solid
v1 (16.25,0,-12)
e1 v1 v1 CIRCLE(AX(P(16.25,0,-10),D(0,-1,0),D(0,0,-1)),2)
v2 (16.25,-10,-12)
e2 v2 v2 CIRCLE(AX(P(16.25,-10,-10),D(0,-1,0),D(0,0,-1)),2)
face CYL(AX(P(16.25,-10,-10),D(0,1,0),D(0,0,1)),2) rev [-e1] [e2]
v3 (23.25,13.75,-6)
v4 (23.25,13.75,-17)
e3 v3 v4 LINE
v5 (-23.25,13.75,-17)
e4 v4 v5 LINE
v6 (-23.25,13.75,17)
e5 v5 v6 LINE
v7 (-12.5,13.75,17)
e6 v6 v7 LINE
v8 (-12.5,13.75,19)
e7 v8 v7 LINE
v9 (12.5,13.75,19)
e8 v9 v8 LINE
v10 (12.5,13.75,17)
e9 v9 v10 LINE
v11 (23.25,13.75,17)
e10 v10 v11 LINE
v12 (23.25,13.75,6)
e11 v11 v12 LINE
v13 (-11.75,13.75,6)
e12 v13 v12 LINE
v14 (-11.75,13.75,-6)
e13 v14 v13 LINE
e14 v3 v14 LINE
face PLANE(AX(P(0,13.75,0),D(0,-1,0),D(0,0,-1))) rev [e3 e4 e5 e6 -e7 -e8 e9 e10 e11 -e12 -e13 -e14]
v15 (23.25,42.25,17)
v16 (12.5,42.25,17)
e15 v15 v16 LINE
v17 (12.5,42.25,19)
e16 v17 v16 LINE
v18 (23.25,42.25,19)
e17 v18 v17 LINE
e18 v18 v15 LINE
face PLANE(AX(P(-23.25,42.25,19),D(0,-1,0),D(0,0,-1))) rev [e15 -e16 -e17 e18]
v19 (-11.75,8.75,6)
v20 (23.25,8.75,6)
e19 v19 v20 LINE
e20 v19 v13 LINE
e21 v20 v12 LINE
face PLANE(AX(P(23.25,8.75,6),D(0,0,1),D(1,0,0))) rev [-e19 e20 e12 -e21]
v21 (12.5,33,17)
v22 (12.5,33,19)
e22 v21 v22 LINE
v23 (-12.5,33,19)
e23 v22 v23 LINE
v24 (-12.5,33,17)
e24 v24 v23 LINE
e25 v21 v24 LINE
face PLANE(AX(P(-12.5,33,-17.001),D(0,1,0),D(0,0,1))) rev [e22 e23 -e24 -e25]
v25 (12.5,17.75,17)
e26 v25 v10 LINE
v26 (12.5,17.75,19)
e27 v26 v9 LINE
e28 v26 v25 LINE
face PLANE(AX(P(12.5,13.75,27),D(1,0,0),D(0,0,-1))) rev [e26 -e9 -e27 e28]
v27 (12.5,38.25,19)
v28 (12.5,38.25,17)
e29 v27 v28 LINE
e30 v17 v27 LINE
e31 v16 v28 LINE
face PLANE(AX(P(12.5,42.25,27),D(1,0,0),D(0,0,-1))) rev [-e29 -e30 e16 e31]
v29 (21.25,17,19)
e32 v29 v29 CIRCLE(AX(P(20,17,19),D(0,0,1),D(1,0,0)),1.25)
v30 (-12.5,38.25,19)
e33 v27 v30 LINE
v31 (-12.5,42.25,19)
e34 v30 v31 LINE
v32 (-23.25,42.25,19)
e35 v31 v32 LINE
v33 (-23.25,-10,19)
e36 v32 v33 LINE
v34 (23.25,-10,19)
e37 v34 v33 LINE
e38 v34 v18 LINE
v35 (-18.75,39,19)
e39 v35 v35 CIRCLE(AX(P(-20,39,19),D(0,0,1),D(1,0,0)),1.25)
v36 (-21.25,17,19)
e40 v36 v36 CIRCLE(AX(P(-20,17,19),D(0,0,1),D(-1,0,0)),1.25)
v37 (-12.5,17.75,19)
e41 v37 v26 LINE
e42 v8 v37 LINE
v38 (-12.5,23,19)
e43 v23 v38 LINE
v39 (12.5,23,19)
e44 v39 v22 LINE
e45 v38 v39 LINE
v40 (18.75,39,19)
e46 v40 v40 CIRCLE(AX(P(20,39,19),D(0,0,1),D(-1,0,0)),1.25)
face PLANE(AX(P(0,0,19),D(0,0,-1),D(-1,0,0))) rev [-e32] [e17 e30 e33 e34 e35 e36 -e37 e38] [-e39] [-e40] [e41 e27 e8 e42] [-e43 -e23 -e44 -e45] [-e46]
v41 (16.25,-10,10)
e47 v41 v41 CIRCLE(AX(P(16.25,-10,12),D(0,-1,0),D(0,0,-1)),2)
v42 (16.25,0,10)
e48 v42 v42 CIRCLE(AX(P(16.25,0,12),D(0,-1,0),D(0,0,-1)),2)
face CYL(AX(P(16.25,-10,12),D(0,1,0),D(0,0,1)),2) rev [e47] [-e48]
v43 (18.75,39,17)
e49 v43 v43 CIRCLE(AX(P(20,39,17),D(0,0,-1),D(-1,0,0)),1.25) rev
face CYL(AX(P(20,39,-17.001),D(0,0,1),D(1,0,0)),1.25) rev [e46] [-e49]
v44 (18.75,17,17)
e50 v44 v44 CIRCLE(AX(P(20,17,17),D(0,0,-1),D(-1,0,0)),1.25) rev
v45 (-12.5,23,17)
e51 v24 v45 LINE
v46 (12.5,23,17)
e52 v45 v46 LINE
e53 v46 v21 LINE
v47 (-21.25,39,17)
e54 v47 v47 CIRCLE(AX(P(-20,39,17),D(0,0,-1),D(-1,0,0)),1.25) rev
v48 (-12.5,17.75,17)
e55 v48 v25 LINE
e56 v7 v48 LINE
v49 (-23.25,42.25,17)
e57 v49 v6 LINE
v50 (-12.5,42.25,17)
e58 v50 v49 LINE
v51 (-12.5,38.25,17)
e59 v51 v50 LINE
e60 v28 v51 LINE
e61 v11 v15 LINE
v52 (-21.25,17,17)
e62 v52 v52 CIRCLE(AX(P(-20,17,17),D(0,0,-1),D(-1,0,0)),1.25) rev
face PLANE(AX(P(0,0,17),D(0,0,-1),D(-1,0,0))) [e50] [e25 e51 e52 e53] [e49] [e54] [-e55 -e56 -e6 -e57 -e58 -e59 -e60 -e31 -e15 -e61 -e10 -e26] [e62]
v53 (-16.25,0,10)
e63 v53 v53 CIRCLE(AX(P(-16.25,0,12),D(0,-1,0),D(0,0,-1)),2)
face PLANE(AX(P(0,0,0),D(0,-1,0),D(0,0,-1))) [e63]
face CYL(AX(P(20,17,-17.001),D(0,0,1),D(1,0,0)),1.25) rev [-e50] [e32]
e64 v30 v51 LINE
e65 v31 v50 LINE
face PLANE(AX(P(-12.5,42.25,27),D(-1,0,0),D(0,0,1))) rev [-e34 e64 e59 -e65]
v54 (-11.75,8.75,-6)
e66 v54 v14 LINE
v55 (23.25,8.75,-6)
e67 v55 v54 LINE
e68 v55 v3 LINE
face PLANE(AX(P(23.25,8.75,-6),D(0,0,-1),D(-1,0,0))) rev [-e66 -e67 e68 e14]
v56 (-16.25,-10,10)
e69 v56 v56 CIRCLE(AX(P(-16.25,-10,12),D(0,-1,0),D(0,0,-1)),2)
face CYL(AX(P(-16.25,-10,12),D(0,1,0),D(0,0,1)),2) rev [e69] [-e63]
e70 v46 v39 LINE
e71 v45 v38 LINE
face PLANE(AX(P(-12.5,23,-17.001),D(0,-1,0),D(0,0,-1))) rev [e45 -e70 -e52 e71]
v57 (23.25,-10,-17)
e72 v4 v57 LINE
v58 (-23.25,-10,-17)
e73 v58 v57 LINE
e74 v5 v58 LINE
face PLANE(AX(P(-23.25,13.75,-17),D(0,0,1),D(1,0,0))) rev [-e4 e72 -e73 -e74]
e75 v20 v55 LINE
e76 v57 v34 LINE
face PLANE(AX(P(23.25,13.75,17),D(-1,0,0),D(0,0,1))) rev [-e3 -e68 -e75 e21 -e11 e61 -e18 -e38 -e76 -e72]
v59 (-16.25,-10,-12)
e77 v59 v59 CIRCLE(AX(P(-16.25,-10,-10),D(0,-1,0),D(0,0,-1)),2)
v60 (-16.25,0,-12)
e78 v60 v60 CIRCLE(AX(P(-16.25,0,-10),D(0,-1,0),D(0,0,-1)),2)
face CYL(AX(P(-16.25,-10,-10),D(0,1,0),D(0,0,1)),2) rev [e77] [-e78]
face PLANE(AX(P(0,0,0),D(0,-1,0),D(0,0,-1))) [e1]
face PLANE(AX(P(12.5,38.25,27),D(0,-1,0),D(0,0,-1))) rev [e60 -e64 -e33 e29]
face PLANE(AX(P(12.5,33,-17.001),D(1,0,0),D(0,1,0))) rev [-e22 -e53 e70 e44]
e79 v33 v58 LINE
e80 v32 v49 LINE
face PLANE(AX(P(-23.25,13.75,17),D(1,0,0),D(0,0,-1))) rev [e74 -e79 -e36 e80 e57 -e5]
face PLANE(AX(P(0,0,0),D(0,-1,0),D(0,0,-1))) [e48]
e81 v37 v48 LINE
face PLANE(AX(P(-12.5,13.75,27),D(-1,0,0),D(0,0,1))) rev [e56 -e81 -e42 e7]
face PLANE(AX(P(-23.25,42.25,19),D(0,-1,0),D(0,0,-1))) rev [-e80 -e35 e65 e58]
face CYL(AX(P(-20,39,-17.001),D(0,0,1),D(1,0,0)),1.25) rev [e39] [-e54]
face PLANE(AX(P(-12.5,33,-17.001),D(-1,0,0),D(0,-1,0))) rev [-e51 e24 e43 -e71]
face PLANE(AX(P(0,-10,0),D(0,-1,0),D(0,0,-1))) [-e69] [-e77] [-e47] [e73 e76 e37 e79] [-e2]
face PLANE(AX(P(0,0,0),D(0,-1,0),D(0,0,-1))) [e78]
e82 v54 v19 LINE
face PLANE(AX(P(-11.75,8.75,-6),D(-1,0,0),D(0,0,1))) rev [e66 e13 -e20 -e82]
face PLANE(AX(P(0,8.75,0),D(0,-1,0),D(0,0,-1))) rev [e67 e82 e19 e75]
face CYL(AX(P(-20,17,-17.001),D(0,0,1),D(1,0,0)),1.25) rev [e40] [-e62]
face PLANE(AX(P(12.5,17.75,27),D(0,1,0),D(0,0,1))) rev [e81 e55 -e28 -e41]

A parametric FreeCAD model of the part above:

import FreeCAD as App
import Part
import Sketcher

V = App.Vector
Q = App.Units.Quantity


def add_polygon(sketch, points):
    """Adds a closed chain of lines whose ends are joined by coincident constraints."""
    first, n = sketch.GeometryCount, len(points)
    for a, b in zip(points, points[1:] + points[:1]):
        sketch.addGeometry(Part.LineSegment(App.Vector(*a, 0), App.Vector(*b, 0)), False)
    for i in range(n):
        sketch.addConstraint(Sketcher.Constraint("Coincident", first + i, 2, first + (i + 1) % n, 1))

doc = App.newDocument("Part")
body = doc.addObject("PartDesign::Body", "Body")

# Sketch on XZ plane
sketch1 = doc.addObject("Sketcher::SketchObject", "Sketch")
body.addObject(sketch1)
sketch1.AttachmentSupport = (doc.XZ_Plane, [""])
sketch1.MapMode = "FlatFace"
add_polygon(sketch1, [(-23, -17), (-23, 17), (23, 17), (23, -17)])  # lines 0-3
sketch1.addConstraint([
    Sketcher.Constraint("Vertical", 0),
    Sketcher.Constraint("Horizontal", 1),
    Sketcher.Constraint("Vertical", 2),
    Sketcher.Constraint("Horizontal", 3),
    Sketcher.Constraint("Symmetric", 0, 2, 2, 2, -1, 1),
    Sketcher.Constraint("DistanceY", 0, 1, 0, 2, Q("34 mm")),
    Sketcher.Constraint("DistanceX", 1, 1, 1, 2, Q("46.5 mm")),
])
pad1 = doc.addObject("PartDesign::Pad", "Pad")
body.addObject(pad1)
pad1.Profile = sketch1
pad1.Length = 13.75
pad1.Reversed = True

# Sketch on XY plane
sketch2 = doc.addObject("Sketcher::SketchObject", "Sketch001")
body.addObject(sketch2)
sketch2.AttachmentSupport = (doc.XY_Plane, [""])
sketch2.MapMode = "FlatFace"
sketch2.AttachmentOffset = App.Placement(V(0, 0, 17), App.Rotation())
add_polygon(sketch2, [(-23, 42), (-23, 0), (23, 0), (23, 42)])  # lines 0-3
sketch2.addConstraint([
    Sketcher.Constraint("Vertical", 0),
    Sketcher.Constraint("Horizontal", 1),
    Sketcher.Constraint("Vertical", 2),
    Sketcher.Constraint("Horizontal", 3),
    Sketcher.Constraint("Symmetric", 0, 2, 1, 2, -1, 1),
    Sketcher.Constraint("DistanceX", 1, 1, 1, 2, Q("46.5 mm")),
    Sketcher.Constraint("DistanceY", 0, 2, 0, 1, Q("42.25 mm")),
])
pad2 = doc.addObject("PartDesign::Pad", "Pad001")
body.addObject(pad2)
pad2.Profile = sketch2
pad2.Length = 2

# Sketch on XY plane
sketch3 = doc.addObject("Sketcher::SketchObject", "Sketch002")
body.addObject(sketch3)
sketch3.AttachmentSupport = (doc.XY_Plane, [""])
sketch3.MapMode = "FlatFace"
sketch3.AttachmentOffset = App.Placement(V(0, 0, 19), App.Rotation())
sketch3.addGeometry(Part.Circle(V(-20, 39, 0), V(0, 0, 1), 1.2), False)
sketch3.addConstraint([
    Sketcher.Constraint("Diameter", 0, Q("2.5 mm")),
    Sketcher.Constraint("DistanceX", 0, 3, -1, 1, Q("20 mm")),
    Sketcher.Constraint("DistanceY", -1, 1, 0, 3, Q("39 mm")),
])
pocket1 = doc.addObject("PartDesign::Pocket", "Pocket")
body.addObject(pocket1)
pocket1.Profile = sketch3
pocket1.Type = "UpToFirst"

# Sketch on XY plane
sketch4 = doc.addObject("Sketcher::SketchObject", "Sketch003")
body.addObject(sketch4)
sketch4.AttachmentSupport = (doc.XY_Plane, [""])
sketch4.MapMode = "FlatFace"
sketch4.AttachmentOffset = App.Placement(V(0, 0, 19), App.Rotation())
sketch4.addGeometry(Part.Circle(V(20, 39, 0), V(0, 0, 1), 1.2), False)
sketch4.addConstraint([
    Sketcher.Constraint("Diameter", 0, Q("2.5 mm")),
    Sketcher.Constraint("DistanceX", -1, 1, 0, 3, Q("20 mm")),
    Sketcher.Constraint("DistanceY", -1, 1, 0, 3, Q("39 mm")),
])
pocket2 = doc.addObject("PartDesign::Pocket", "Pocket001")
body.addObject(pocket2)
pocket2.Profile = sketch4
pocket2.Type = "UpToFirst"

# Sketch on XY plane
sketch5 = doc.addObject("Sketcher::SketchObject", "Sketch004")
body.addObject(sketch5)
sketch5.AttachmentSupport = (doc.XY_Plane, [""])
sketch5.MapMode = "FlatFace"
sketch5.AttachmentOffset = App.Placement(V(0, 0, 19), App.Rotation())
sketch5.addGeometry(Part.Circle(V(20, 17, 0), V(0, 0, 1), 1.2), False)
sketch5.addConstraint([
    Sketcher.Constraint("Diameter", 0, Q("2.5 mm")),
    Sketcher.Constraint("DistanceX", -1, 1, 0, 3, Q("20 mm")),
    Sketcher.Constraint("DistanceY", -1, 1, 0, 3, Q("17 mm")),
])
pocket3 = doc.addObject("PartDesign::Pocket", "Pocket002")
body.addObject(pocket3)
pocket3.Profile = sketch5
pocket3.Type = "UpToFirst"

# Sketch on XY plane
sketch6 = doc.addObject("Sketcher::SketchObject", "Sketch005")
body.addObject(sketch6)
sketch6.AttachmentSupport = (doc.XY_Plane, [""])
sketch6.MapMode = "FlatFace"
sketch6.AttachmentOffset = App.Placement(V(0, 0, 19), App.Rotation())
sketch6.addGeometry(Part.Circle(V(-20, 17, 0), V(0, 0, 1), 1.2), False)
sketch6.addConstraint([
    Sketcher.Constraint("Diameter", 0, Q("2.5 mm")),
    Sketcher.Constraint("DistanceX", 0, 3, -1, 1, Q("20 mm")),
    Sketcher.Constraint("DistanceY", -1, 1, 0, 3, Q("17 mm")),
])
pocket4 = doc.addObject("PartDesign::Pocket", "Pocket003")
body.addObject(pocket4)
pocket4.Profile = sketch6
pocket4.Type = "UpToFirst"

# Sketch on XY plane
sketch7 = doc.addObject("Sketcher::SketchObject", "Sketch006")
body.addObject(sketch7)
sketch7.AttachmentSupport = (doc.XY_Plane, [""])
sketch7.MapMode = "FlatFace"
sketch7.AttachmentOffset = App.Placement(V(0, 0, 19), App.Rotation())
add_polygon(sketch7, [(-12, 33), (-12, 23), (12, 23), (12, 33)])  # lines 0-3
sketch7.addConstraint([
    Sketcher.Constraint("Vertical", 0),
    Sketcher.Constraint("Horizontal", 1),
    Sketcher.Constraint("Vertical", 2),
    Sketcher.Constraint("Horizontal", 3),
    Sketcher.Constraint("DistanceX", 1, 1, 1, 2, Q("25 mm")),
    Sketcher.Constraint("DistanceY", 0, 2, 0, 1, Q("10 mm")),
    Sketcher.Constraint("DistanceY", -1, 1, 0, 2, Q("23 mm")),
    Sketcher.Constraint("DistanceX", 0, 2, -1, 1, Q("12.5 mm")),
])
pocket5 = doc.addObject("PartDesign::Pocket", "Pocket004")
body.addObject(pocket5)
pocket5.Profile = sketch7
pocket5.Type = "UpToFirst"

# Sketch on XZ plane
sketch8 = doc.addObject("Sketcher::SketchObject", "Sketch007")
body.addObject(sketch8)
sketch8.AttachmentSupport = (doc.XZ_Plane, [""])
sketch8.MapMode = "FlatFace"
sketch8.AttachmentOffset = App.Placement(V(0, 0, -13.75), App.Rotation())
add_polygon(sketch8, [(-12, -6), (-12, 6), (23, 6), (23, -6)])  # lines 0-3
sketch8.addConstraint([
    Sketcher.Constraint("Vertical", 0),
    Sketcher.Constraint("Horizontal", 1),
    Sketcher.Constraint("Vertical", 2),
    Sketcher.Constraint("Horizontal", 3),
    Sketcher.Constraint("DistanceX", 1, 1, 1, 2, Q("35 mm")),
    Sketcher.Constraint("DistanceY", 0, 1, 0, 2, Q("12 mm")),
    Sketcher.Constraint("DistanceY", -1, 1, 0, 2, Q("6 mm")),
    Sketcher.Constraint("DistanceX", 0, 2, -1, 1, Q("11.75 mm")),
])
pocket6 = doc.addObject("PartDesign::Pocket", "Pocket005")
body.addObject(pocket6)
pocket6.Profile = sketch8
pocket6.Length = 5
pocket6.Reversed = True

# Sketch on XZ plane
sketch9 = doc.addObject("Sketcher::SketchObject", "Sketch008")
body.addObject(sketch9)
sketch9.AttachmentSupport = (doc.XZ_Plane, [""])
sketch9.MapMode = "FlatFace"
add_polygon(sketch9, [(-23.2, 19), (-23.2, -17), (23.2, -17), (23.2, 19)])  # lines 0-3
sketch9.addGeometry(Part.Circle(V(-16.2, -10, 0), V(0, 0, 1), 2), False)  # 4
sketch9.addGeometry(Part.Circle(V(16.2, -10, 0), V(0, 0, 1), 2), False)  # 5
sketch9.addGeometry(Part.Circle(V(-16.2, 12, 0), V(0, 0, 1), 2), False)  # 6
sketch9.addGeometry(Part.Circle(V(16.2, 12, 0), V(0, 0, 1), 2), False)  # 7
sketch9.addConstraint([
    Sketcher.Constraint("Vertical", 0),
    Sketcher.Constraint("Horizontal", 1),
    Sketcher.Constraint("Vertical", 2),
    Sketcher.Constraint("Horizontal", 3),
    Sketcher.Constraint("Equal", 4, 5),
    Sketcher.Constraint("Equal", 5, 6),
    Sketcher.Constraint("Equal", 6, 7),
    Sketcher.Constraint("Symmetric", 4, 3, 5, 3, -2),
    Sketcher.Constraint("Symmetric", 6, 3, 7, 3, -2),
    Sketcher.Constraint("Vertical", 4, 3, 6, 3),
    Sketcher.Constraint("Diameter", 4, Q("4 mm")),
    Sketcher.Constraint("DistanceY", 0, 2, 0, 1, Q("36 mm")),
    Sketcher.Constraint("DistanceX", 1, 1, 1, 2, Q("46.5 mm")),
    Sketcher.Constraint("DistanceY", 4, 3, -1, 1, Q("10 mm")),
    Sketcher.Constraint("DistanceY", -1, 1, 6, 3, Q("12 mm")),
    Sketcher.Constraint("DistanceY", 0, 2, -1, 1, Q("17 mm")),
    Sketcher.Constraint("DistanceX", 0, 2, 4, 3, Q("7 mm")),
    Sketcher.Constraint("DistanceX", 5, 3, 1, 2, Q("7 mm")),
])
pad3 = doc.addObject("PartDesign::Pad", "Pad002")
body.addObject(pad3)
pad3.Profile = sketch9
pad3.Length = 10

# Sketch on XY plane
sketch10 = doc.addObject("Sketcher::SketchObject", "Sketch009")
body.addObject(sketch10)
sketch10.AttachmentSupport = (doc.XY_Plane, [""])
sketch10.MapMode = "FlatFace"
sketch10.AttachmentOffset = App.Placement(V(0, 0, 17), App.Rotation())
add_polygon(sketch10, [(12.5, 17.8), (12.5, 13.8), (-12.5, 13.8), (-12.5, 17.8)])  # lines 0-3
add_polygon(sketch10, [(12.5, 42.2), (12.5, 38.2), (-12.5, 38.2), (-12.5, 42.2)])  # lines 4-7
sketch10.addConstraint([
    Sketcher.Constraint("Vertical", 0),
    Sketcher.Constraint("Horizontal", 1),
    Sketcher.Constraint("Vertical", 2),
    Sketcher.Constraint("Horizontal", 3),
    Sketcher.Constraint("Vertical", 4),
    Sketcher.Constraint("Horizontal", 5),
    Sketcher.Constraint("Vertical", 6),
    Sketcher.Constraint("Horizontal", 7),
    Sketcher.Constraint("Vertical", 3, 2, 4, 2),
    Sketcher.Constraint("Vertical", 2, 2, 5, 2),
    Sketcher.Constraint("Equal", 2, 4),
    Sketcher.Constraint("DistanceX", 1, 2, 1, 1, Q("25 mm")),
    Sketcher.Constraint("DistanceY", 0, 2, 0, 1, Q("4 mm")),
    Sketcher.Constraint("DistanceX", -1, 1, 0, 2, Q("12.5 mm")),
    Sketcher.Constraint("DistanceY", 3, 2, 4, 2, Q("20.5 mm")),
    Sketcher.Constraint("DistanceY", -1, 1, 0, 2, Q("13.75 mm")),
])
pocket7 = doc.addObject("PartDesign::Pocket", "Pocket006")
body.addObject(pocket7)
pocket7.Profile = sketch10
pocket7.Length = 10
pocket7.Reversed = True

doc.recompute()
